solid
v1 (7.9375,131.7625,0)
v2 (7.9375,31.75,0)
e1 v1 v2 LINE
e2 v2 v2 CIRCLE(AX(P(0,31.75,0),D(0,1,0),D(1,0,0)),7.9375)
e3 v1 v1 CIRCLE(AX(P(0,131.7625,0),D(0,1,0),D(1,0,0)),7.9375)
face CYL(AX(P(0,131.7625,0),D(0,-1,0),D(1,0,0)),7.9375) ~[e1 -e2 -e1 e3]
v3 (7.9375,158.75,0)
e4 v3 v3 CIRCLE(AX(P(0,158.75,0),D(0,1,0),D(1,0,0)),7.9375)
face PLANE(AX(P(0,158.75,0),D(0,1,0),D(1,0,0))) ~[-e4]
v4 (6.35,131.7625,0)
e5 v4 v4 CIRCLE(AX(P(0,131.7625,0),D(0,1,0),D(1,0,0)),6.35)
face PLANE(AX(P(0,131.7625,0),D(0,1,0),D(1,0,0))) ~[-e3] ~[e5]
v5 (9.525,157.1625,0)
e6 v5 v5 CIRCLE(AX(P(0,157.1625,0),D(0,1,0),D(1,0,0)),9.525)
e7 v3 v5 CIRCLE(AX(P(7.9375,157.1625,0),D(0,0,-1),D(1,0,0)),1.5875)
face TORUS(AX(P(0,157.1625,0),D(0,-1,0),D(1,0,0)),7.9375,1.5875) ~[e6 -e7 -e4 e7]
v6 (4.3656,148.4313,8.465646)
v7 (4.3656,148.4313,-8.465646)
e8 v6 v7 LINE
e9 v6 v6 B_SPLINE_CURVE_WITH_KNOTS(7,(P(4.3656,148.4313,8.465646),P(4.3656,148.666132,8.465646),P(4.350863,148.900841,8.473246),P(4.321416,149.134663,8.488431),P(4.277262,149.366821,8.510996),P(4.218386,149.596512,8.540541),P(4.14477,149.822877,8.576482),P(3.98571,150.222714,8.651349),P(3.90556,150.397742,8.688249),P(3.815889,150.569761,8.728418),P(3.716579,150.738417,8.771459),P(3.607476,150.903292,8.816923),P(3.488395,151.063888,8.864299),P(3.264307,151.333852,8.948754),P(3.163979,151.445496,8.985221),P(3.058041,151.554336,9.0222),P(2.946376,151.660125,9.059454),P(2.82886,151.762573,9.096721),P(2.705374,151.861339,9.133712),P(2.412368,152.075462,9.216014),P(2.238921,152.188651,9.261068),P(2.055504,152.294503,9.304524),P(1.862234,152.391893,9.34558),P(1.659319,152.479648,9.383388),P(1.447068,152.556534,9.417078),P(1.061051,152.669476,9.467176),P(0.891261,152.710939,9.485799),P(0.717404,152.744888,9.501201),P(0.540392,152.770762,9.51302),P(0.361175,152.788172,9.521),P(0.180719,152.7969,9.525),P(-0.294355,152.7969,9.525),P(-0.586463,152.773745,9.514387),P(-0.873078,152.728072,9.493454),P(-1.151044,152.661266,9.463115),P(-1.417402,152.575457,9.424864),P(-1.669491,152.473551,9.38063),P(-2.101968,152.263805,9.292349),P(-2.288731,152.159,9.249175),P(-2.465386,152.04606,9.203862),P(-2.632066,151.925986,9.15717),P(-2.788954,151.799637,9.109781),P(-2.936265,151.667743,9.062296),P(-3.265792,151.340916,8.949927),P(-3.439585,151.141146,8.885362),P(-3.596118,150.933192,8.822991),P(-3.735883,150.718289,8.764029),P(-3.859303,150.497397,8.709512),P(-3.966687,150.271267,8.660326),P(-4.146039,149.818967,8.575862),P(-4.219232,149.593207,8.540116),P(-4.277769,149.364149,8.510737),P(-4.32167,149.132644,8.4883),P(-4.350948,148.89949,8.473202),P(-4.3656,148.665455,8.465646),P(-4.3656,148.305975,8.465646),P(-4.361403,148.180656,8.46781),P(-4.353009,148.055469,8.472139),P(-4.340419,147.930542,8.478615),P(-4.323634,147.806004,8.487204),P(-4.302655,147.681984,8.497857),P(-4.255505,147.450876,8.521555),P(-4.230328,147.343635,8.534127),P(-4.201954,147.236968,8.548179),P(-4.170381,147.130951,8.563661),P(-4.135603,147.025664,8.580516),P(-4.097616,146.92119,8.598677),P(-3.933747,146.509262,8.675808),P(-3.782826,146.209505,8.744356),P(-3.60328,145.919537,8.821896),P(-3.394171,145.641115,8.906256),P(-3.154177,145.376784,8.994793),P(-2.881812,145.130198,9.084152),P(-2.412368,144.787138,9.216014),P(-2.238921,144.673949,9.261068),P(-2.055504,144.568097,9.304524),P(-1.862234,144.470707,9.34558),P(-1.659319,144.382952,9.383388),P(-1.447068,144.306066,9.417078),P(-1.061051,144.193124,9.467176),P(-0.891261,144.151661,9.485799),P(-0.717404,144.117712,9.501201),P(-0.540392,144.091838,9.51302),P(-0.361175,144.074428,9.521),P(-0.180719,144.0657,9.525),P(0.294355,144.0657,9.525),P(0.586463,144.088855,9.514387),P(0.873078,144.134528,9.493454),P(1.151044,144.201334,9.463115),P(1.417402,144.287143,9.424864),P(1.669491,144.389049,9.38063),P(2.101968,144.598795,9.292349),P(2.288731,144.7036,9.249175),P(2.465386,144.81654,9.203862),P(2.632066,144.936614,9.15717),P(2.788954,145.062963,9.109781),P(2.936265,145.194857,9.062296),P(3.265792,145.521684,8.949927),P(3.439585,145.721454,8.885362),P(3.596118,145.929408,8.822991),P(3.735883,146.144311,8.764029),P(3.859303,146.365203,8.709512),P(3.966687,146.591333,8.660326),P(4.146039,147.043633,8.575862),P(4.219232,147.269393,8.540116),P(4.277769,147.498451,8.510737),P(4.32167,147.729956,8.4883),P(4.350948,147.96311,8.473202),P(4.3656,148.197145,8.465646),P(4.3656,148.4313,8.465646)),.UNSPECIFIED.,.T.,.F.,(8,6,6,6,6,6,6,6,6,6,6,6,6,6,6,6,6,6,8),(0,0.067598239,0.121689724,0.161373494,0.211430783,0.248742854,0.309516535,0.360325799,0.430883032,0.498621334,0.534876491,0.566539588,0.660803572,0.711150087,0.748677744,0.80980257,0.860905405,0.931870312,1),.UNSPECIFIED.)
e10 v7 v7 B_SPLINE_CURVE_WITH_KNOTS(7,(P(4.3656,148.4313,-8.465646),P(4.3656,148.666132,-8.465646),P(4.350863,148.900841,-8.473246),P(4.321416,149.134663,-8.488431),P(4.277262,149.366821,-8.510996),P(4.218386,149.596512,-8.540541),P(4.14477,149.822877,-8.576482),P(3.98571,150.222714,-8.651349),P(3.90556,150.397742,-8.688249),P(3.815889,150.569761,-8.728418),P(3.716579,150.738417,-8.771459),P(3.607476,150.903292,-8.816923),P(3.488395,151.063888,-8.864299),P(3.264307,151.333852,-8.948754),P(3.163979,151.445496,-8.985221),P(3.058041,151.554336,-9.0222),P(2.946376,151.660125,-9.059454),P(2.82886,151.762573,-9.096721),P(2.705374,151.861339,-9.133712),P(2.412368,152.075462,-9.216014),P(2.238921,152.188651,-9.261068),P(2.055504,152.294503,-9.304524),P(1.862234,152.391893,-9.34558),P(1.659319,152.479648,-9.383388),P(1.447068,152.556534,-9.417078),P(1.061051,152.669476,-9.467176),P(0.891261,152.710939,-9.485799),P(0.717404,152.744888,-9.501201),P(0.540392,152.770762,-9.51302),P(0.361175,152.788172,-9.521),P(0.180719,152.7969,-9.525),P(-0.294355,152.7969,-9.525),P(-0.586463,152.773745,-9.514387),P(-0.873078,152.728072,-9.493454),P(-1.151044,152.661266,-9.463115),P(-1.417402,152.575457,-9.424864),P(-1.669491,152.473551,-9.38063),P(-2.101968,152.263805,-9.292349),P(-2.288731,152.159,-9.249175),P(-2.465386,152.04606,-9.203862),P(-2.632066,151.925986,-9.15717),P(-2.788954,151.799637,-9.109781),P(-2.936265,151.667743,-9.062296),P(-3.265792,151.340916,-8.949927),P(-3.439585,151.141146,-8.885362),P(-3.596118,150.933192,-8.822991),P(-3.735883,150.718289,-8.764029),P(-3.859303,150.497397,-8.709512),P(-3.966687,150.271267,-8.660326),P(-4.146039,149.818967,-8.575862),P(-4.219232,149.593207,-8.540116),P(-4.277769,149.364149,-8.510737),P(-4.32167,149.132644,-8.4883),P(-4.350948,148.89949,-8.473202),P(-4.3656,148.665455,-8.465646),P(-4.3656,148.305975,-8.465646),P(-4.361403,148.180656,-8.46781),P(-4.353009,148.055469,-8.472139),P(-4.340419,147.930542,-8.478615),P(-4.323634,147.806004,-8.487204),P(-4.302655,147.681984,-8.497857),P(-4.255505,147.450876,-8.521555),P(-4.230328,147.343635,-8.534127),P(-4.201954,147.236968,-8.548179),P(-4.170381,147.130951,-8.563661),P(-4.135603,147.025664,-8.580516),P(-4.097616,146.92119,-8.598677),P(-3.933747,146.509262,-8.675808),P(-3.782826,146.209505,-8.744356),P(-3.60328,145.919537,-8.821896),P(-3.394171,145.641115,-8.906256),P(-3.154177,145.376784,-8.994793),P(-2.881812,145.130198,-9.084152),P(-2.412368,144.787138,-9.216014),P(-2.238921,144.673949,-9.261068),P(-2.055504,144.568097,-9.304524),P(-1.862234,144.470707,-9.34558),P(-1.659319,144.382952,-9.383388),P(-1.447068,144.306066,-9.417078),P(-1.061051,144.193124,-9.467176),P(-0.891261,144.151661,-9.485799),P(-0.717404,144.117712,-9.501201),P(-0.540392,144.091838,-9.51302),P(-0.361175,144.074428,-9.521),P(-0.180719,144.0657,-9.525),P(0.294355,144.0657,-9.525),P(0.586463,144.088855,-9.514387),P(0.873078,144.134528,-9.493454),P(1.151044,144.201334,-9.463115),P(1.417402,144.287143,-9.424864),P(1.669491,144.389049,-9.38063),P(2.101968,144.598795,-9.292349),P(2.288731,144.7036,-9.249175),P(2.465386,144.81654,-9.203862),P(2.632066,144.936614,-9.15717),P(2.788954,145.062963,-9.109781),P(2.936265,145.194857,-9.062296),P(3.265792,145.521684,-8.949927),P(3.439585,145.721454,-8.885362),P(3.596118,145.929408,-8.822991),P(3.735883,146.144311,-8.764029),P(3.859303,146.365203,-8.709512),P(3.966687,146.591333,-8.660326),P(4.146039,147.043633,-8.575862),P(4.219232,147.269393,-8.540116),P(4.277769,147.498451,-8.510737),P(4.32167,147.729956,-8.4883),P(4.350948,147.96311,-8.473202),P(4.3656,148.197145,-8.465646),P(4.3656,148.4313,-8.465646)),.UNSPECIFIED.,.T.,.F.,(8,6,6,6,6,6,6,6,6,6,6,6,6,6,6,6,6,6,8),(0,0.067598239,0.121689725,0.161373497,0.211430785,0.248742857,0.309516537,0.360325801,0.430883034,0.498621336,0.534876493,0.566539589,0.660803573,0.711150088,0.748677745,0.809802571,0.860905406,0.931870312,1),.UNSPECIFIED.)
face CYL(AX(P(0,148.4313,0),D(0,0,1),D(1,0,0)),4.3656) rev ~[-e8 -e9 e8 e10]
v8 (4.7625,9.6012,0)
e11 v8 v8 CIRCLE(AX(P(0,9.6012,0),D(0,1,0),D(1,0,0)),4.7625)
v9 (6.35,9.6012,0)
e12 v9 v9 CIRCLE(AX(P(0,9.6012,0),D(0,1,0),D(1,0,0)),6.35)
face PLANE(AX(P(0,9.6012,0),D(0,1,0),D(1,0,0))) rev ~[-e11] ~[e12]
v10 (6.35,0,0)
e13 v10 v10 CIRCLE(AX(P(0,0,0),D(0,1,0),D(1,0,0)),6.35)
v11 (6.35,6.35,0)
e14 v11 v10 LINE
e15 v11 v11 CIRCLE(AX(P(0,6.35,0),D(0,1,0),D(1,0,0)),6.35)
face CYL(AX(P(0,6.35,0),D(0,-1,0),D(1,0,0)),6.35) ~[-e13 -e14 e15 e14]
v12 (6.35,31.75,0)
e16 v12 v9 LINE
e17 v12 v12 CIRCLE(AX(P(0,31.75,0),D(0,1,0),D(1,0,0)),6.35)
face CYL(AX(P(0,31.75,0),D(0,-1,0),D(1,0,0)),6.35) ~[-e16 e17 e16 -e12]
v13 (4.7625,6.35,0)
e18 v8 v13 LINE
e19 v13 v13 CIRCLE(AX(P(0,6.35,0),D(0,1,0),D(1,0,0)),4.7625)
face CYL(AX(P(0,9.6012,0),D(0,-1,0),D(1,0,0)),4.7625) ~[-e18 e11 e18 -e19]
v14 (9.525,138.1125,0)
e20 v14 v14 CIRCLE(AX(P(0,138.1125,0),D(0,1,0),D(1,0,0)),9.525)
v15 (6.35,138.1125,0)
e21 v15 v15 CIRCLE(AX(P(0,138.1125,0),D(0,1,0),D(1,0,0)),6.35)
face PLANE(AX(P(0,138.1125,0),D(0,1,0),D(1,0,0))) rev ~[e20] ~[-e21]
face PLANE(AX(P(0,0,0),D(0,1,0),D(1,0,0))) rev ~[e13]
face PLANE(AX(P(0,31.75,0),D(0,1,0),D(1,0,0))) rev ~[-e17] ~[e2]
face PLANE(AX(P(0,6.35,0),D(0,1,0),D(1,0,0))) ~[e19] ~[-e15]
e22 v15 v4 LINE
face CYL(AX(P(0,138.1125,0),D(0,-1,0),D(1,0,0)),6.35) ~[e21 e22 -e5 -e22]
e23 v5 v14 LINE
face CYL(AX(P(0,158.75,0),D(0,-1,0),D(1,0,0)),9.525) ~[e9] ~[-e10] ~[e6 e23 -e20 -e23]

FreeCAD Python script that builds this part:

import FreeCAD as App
import Part
import Sketcher
from FreeCAD import Vector
Q = App.Units.Quantity


def edges_at(feature, points):
    """Names of the edges that pass closest to the given points."""
    edges = feature.Shape.Edges
    near = lambda p: min(range(len(edges)), key=lambda i: edges[i].distToShape(Part.Vertex(*p))[0])
    return sorted({f"Edge{near(p) + 1}" for p in points})

doc = App.newDocument("Part")
body = doc.addObject("PartDesign::Body", "Body")

sketch1 = body.newObject("Sketcher::SketchObject", "Sketch")
sketch1.AttachmentSupport = (doc.getObject("XY_Plane"), [""])
sketch1.MapMode = "FlatFace"
sketch1.addGeometry([
    Part.LineSegment(Vector(9.525, 158.75, 0), Vector(0, 158.75, 0)),
    Part.LineSegment(Vector(0, 158.75, 0), Vector(0, 0, 0)),
    Part.LineSegment(Vector(0, 0, 0), Vector(6.35, 0, 0)),
    Part.LineSegment(Vector(6.35, 0, 0), Vector(6.35, 6.35, 0)),
    Part.LineSegment(Vector(6.35, 6.35, 0), Vector(4.7625, 6.35, 0)),
    Part.LineSegment(Vector(4.7625, 6.35, 0), Vector(4.7625, 9.6012, 0)),
    Part.LineSegment(Vector(4.7625, 9.6012, 0), Vector(6.35, 9.6012, 0)),
    Part.LineSegment(Vector(6.35, 9.6012, 0), Vector(6.35, 31.75, 0)),
    Part.LineSegment(Vector(6.35, 31.75, 0), Vector(7.9375, 31.75, 0)),
    Part.LineSegment(Vector(7.9375, 31.75, 0), Vector(7.9375, 131.7625, 0)),
    Part.LineSegment(Vector(7.9375, 131.7625, 0), Vector(6.35, 131.7625, 0)),
    Part.LineSegment(Vector(6.35, 131.7625, 0), Vector(6.35, 138.1125, 0)),
    Part.LineSegment(Vector(6.35, 138.1125, 0), Vector(9.525, 138.1125, 0)),
    Part.LineSegment(Vector(9.525, 138.1125, 0), Vector(9.525, 158.75, 0)),
], False)
sketch1.addConstraint([
    Sketcher.Constraint("Coincident", 0, 2, 1, 1),
    Sketcher.Constraint("Coincident", 1, 2, 2, 1),
    Sketcher.Constraint("Coincident", 2, 2, 3, 1),
    Sketcher.Constraint("Coincident", 3, 2, 4, 1),
    Sketcher.Constraint("Coincident", 4, 2, 5, 1),
    Sketcher.Constraint("Coincident", 5, 2, 6, 1),
    Sketcher.Constraint("Coincident", 6, 2, 7, 1),
    Sketcher.Constraint("Coincident", 7, 2, 8, 1),
    Sketcher.Constraint("Coincident", 8, 2, 9, 1),
    Sketcher.Constraint("Coincident", 9, 2, 10, 1),
    Sketcher.Constraint("Coincident", 10, 2, 11, 1),
    Sketcher.Constraint("Coincident", 11, 2, 12, 1),
    Sketcher.Constraint("Coincident", 12, 2, 13, 1),
    Sketcher.Constraint("Coincident", 13, 2, 0, 1),
    Sketcher.Constraint("Horizontal", 0),
    Sketcher.Constraint("Vertical", 1),
    Sketcher.Constraint("Horizontal", 2),
    Sketcher.Constraint("Vertical", 3),
    Sketcher.Constraint("Horizontal", 4),
    Sketcher.Constraint("Vertical", 5),
    Sketcher.Constraint("Horizontal", 6),
    Sketcher.Constraint("Vertical", 7),
    Sketcher.Constraint("Horizontal", 8),
    Sketcher.Constraint("Vertical", 9),
    Sketcher.Constraint("Horizontal", 10),
    Sketcher.Constraint("Vertical", 11),
    Sketcher.Constraint("Horizontal", 12),
    Sketcher.Constraint("Vertical", 13),
    Sketcher.Constraint("Coincident", 1, 2, -1, 1),
    Sketcher.Constraint("Vertical", 3, 2, 6, 2),
    Sketcher.Constraint("Vertical", 7, 2, 10, 2),
    Sketcher.Constraint("Equal", 6, 8),
    Sketcher.Constraint("Equal", 2, 3),
    Sketcher.Constraint("Equal", 3, 11),
    Sketcher.Constraint("DistanceX", 2, 1, 2, 2, Q("0.25 in")),
    Sketcher.Constraint("DistanceY", 1, 2, 1, 1, Q("6.25 in")),
    Sketcher.Constraint("DistanceX", 0, 2, 0, 1, Q("0.375 in")),
    Sketcher.Constraint("DistanceY", 5, 1, 5, 2, Q("0.128 in")),
    Sketcher.Constraint("DistanceY", 9, 1, 9, 2, Q("3.9375 in")),
    Sketcher.Constraint("DistanceY", 13, 1, 13, 2, Q("0.8125 in")),
    Sketcher.Constraint("DistanceX", 4, 2, 4, 1, Q("0.0625 in")),
])
revolution = body.newObject("PartDesign::Revolution", "Revolution")
revolution.Profile = sketch1
revolution.ReferenceAxis = (sketch1, ["V_Axis"])
revolution.Angle = 360

sketch2 = body.newObject("Sketcher::SketchObject", "Sketch001")
sketch2.AttachmentSupport = (doc.getObject("XY_Plane"), [""])
sketch2.MapMode = "FlatFace"
sketch2.addGeometry(Part.Circle(Vector(0, 148.4313, 0), Vector(0, 0, 1), 4.3656), False)
sketch2.addConstraint([
    Sketcher.Constraint("PointOnObject", 0, 3, -2),
    Sketcher.Constraint("Diameter", 0, Q("0.343748 in")),
    Sketcher.Constraint("DistanceY", -1, 1, 0, 3, Q("5.843752 in")),
])
pocket1 = body.newObject("PartDesign::Pocket", "Pocket")
pocket1.Profile = sketch2
pocket1.Type = "ThroughAll"
pocket1.Midplane = True
doc.recompute()

fillet = body.newObject("PartDesign::Fillet", "Fillet")
fillet.Base = (pocket1, edges_at(pocket1, [(-9.525, 158.75, 0)]))
fillet.Radius = Q("0.0625 in")

doc.recompute()
